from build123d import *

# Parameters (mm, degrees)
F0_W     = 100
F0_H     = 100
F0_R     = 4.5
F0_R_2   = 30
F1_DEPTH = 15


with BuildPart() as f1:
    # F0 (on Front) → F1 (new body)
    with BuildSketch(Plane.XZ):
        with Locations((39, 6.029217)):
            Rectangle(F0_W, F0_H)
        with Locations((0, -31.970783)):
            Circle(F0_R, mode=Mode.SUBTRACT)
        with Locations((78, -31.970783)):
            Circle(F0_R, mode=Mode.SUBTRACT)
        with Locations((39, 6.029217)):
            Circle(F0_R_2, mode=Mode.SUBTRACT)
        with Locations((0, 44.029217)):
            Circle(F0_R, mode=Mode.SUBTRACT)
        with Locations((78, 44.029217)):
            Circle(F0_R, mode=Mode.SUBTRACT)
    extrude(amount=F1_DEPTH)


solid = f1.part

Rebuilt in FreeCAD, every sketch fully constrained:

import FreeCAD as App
import Part
import Sketcher
from FreeCAD import Vector
Q = App.Units.Quantity


def add_polygon(sketch, points):
    """Adds a closed chain of lines whose ends are joined by coincident constraints."""
    first, n = sketch.GeometryCount, len(points)
    for a, b in zip(points, points[1:] + points[:1]):
        sketch.addGeometry(Part.LineSegment(App.Vector(*a, 0), App.Vector(*b, 0)), False)
    for i in range(n):
        sketch.addConstraint(Sketcher.Constraint("Coincident", first + i, 2, first + (i + 1) % n, 1))

doc = App.newDocument("Part")
body = doc.addObject("PartDesign::Body", "Body")

# Sketch on XZ plane
sketch1 = doc.addObject("Sketcher::SketchObject", "Sketch")
body.addObject(sketch1)
sketch1.AttachmentSupport = (doc.XZ_Plane, [""])
sketch1.MapMode = "FlatFace"
add_polygon(sketch1, [(-11, 56.029217), (-11, -43.970783), (89, -43.970783), (89, 56.029217)])  # lines 0-3
sketch1.addGeometry(Part.Circle(Vector(0, -31.970783, 0), Vector(0, 0, 1), 4.5), False)  # 4
sketch1.addGeometry(Part.Circle(Vector(78, -31.970783, 0), Vector(0, 0, 1), 4.5), False)  # 5
sketch1.addGeometry(Part.Circle(Vector(0, 44.029217, 0), Vector(0, 0, 1), 4.5), False)  # 6
sketch1.addGeometry(Part.Circle(Vector(39, 6.029217, 0), Vector(0, 0, 1), 30), False)  # 7
sketch1.addGeometry(Part.Circle(Vector(78, 44.029217, 0), Vector(0, 0, 1), 4.5), False)  # 8
sketch1.addConstraint([
    Sketcher.Constraint("Vertical", 0),
    Sketcher.Constraint("Horizontal", 1),
    Sketcher.Constraint("Vertical", 2),
    Sketcher.Constraint("Horizontal", 3),
    Sketcher.Constraint("Equal", 4, 5),
    Sketcher.Constraint("Equal", 5, 6),
    Sketcher.Constraint("Equal", 6, 8),
    Sketcher.Constraint("PointOnObject", 4, 3, -2),
    Sketcher.Constraint("PointOnObject", 6, 3, -2),
    Sketcher.Constraint("Horizontal", 4, 3, 5, 3),
    Sketcher.Constraint("Horizontal", 6, 3, 8, 3),
    Sketcher.Constraint("Vertical", 5, 3, 8, 3),
    Sketcher.Constraint("Equal", 3, 0),
    Sketcher.Constraint("Diameter", 4, Q("9 mm")),
    Sketcher.Constraint("Diameter", 7, Q("60 mm")),
    Sketcher.Constraint("DistanceX", 1, 1, 1, 2, Q("100 mm")),
    Sketcher.Constraint("DistanceX", -1, 1, 5, 3, Q("78 mm")),
    Sketcher.Constraint("DistanceX", -1, 1, 7, 3, Q("39 mm")),
    Sketcher.Constraint("DistanceX", 0, 2, -1, 1, Q("11 mm")),
    Sketcher.Constraint("DistanceY", 4, 3, 6, 3, Q("76 mm")),
    Sketcher.Constraint("DistanceY", 4, 3, 7, 3, Q("38 mm")),
    Sketcher.Constraint("DistanceY", 0, 2, 4, 3, Q("12 mm")),
    Sketcher.Constraint("DistanceY", 4, 3, -1, 1, Q("31.970783 mm")),
])
pad1 = doc.addObject("PartDesign::Pad", "Pad")
body.addObject(pad1)
pad1.Profile = sketch1
pad1.Length = 15

doc.recompute()
